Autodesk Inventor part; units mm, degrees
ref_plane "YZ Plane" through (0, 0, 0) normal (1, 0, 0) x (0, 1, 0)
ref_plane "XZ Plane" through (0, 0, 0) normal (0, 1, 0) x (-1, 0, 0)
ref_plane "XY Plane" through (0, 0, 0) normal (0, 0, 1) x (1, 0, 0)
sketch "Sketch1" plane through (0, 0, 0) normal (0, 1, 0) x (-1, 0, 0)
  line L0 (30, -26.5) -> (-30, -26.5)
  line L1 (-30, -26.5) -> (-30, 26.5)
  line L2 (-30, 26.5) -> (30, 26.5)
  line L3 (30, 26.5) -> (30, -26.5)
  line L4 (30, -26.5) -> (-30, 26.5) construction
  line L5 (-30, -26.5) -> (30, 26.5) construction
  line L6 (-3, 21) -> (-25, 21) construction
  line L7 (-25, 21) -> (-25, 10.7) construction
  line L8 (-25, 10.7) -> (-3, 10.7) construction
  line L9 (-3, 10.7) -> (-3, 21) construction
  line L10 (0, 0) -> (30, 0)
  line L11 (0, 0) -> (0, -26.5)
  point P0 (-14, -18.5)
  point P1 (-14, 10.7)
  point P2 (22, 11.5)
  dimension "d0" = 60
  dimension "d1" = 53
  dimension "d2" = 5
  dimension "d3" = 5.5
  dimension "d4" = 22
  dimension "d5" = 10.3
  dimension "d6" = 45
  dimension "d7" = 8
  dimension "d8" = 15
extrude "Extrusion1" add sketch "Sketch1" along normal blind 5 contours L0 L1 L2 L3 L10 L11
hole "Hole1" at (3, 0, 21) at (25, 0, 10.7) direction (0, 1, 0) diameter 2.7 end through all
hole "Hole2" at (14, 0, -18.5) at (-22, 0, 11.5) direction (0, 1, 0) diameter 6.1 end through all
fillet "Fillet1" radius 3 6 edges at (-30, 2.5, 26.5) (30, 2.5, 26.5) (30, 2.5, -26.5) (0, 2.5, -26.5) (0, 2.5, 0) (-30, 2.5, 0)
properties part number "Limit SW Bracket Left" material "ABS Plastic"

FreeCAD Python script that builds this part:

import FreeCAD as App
import Part
import Sketcher

V = App.Vector


def edges_at(feature, points):
    """Names of the edges that pass closest to the given points."""
    edges = feature.Shape.Edges
    near = lambda p: min(range(len(edges)), key=lambda i: edges[i].distToShape(Part.Vertex(*p))[0])
    return sorted({f"Edge{near(p) + 1}" for p in points})

doc = App.newDocument("Part")
body = doc.addObject("PartDesign::Body", "Body")

sketch1 = body.newObject("Sketcher::SketchObject", "Sketch")
sketch1.AttachmentSupport = (doc.getObject("XZ_Plane"), [""])
sketch1.MapMode = "FlatFace"
sketch1.addGeometry(Part.LineSegment(V(30, -26, 0), V(0, -26, 0)), False)
sketch1.addGeometry(Part.LineSegment(V(0, -26, 0), V(0, 0, 0)), False)
sketch1.addGeometry(Part.LineSegment(V(0, 0, 0), V(-30, 0, 0)), False)
sketch1.addGeometry(Part.LineSegment(V(-30, 0, 0), V(-30, 26, 0)), False)
sketch1.addGeometry(Part.LineSegment(V(-30, 26, 0), V(30, 26, 0)), False)
sketch1.addGeometry(Part.LineSegment(V(30, 26, 0), V(30, -26, 0)), False)
sketch1.addConstraint(Sketcher.Constraint("Coincident", 0, 2, 1, 1))
sketch1.addConstraint(Sketcher.Constraint("Coincident", 1, 2, 2, 1))
sketch1.addConstraint(Sketcher.Constraint("Coincident", 2, 2, 3, 1))
sketch1.addConstraint(Sketcher.Constraint("Coincident", 3, 2, 4, 1))
sketch1.addConstraint(Sketcher.Constraint("Coincident", 4, 2, 5, 1))
sketch1.addConstraint(Sketcher.Constraint("Coincident", 5, 2, 0, 1))
sketch1.addConstraint(Sketcher.Constraint("Horizontal", 0))
sketch1.addConstraint(Sketcher.Constraint("Vertical", 1))
sketch1.addConstraint(Sketcher.Constraint("Horizontal", 2))
sketch1.addConstraint(Sketcher.Constraint("Vertical", 3))
sketch1.addConstraint(Sketcher.Constraint("Horizontal", 4))
sketch1.addConstraint(Sketcher.Constraint("Vertical", 5))
sketch1.addConstraint(Sketcher.Constraint("Coincident", 1, 2, -1, 1))
sketch1.addConstraint(Sketcher.Constraint("Symmetric", 3, 2, 5, 2, -1, 1))
sketch1.addConstraint(Sketcher.Constraint("DistanceX", 4, 1, 4, 2, 60.0))
sketch1.addConstraint(Sketcher.Constraint("DistanceY", 5, 2, 5, 1, 53.0))
pad1 = body.newObject("PartDesign::Pad", "Pad")
pad1.Profile = sketch1
pad1.Length = 5
pad1.Reversed = True

sketch2 = body.newObject("Sketcher::SketchObject", "Sketch001")
sketch2.AttachmentSupport = (doc.getObject("XZ_Plane"), [""])
sketch2.MapMode = "FlatFace"
sketch2.addGeometry(Part.Circle(V(3, 21, 0), V(0, 0, 1), 1.4), False)
sketch2.addGeometry(Part.Circle(V(25, 10.7, 0), V(0, 0, 1), 1.4), False)
sketch2.addConstraint(Sketcher.Constraint("Equal", 0, 1))
sketch2.addConstraint(Sketcher.Constraint("Diameter", 0, 2.7))
sketch2.addConstraint(Sketcher.Constraint("DistanceX", -1, 1, 0, 3, 3.0))
sketch2.addConstraint(Sketcher.Constraint("DistanceY", -1, 1, 0, 3, 21.0))
sketch2.addConstraint(Sketcher.Constraint("DistanceX", -1, 1, 1, 3, 25.0))
sketch2.addConstraint(Sketcher.Constraint("DistanceY", -1, 1, 1, 3, 10.7))
doc.recompute()
hole = body.newObject("PartDesign::Hole", "Hole")
hole.Profile = sketch2
hole.ThreadType = "None"
hole.Diameter = 2.7
hole.DepthType = "ThroughAll"

sketch3 = body.newObject("Sketcher::SketchObject", "Sketch002")
sketch3.AttachmentSupport = (doc.getObject("XZ_Plane"), [""])
sketch3.MapMode = "FlatFace"
sketch3.addGeometry(Part.Circle(V(14, -18.5, 0), V(0, 0, 1), 3), False)
sketch3.addGeometry(Part.Circle(V(-22, 11.5, 0), V(0, 0, 1), 3), False)
sketch3.addConstraint(Sketcher.Constraint("Equal", 0, 1))
sketch3.addConstraint(Sketcher.Constraint("Diameter", 0, 6.1))
sketch3.addConstraint(Sketcher.Constraint("DistanceX", -1, 1, 0, 3, 14.0))
sketch3.addConstraint(Sketcher.Constraint("DistanceX", 1, 3, -1, 1, 22.0))
sketch3.addConstraint(Sketcher.Constraint("DistanceY", 0, 3, 1, 3, 30.0))
sketch3.addConstraint(Sketcher.Constraint("DistanceY", 0, 3, -1, 1, 18.5))
doc.recompute()
hole2 = body.newObject("PartDesign::Hole", "Hole001")
hole2.Profile = sketch3
hole2.ThreadType = "None"
hole2.Diameter = 6.1
hole2.DepthType = "ThroughAll"
doc.recompute()

fillet = body.newObject("PartDesign::Fillet", "Fillet")
fillet.Base = (hole2, edges_at(hole2, [
    (-30, 2.5, 26.5),
    (30, 2.5, 26.5),
    (30, 2.5, -26.5),
    (0, 2.5, -26.5),
    (0, 2.5, 0),
    (-30, 2.5, 0),
]))
fillet.Radius = 3

doc.recompute()
